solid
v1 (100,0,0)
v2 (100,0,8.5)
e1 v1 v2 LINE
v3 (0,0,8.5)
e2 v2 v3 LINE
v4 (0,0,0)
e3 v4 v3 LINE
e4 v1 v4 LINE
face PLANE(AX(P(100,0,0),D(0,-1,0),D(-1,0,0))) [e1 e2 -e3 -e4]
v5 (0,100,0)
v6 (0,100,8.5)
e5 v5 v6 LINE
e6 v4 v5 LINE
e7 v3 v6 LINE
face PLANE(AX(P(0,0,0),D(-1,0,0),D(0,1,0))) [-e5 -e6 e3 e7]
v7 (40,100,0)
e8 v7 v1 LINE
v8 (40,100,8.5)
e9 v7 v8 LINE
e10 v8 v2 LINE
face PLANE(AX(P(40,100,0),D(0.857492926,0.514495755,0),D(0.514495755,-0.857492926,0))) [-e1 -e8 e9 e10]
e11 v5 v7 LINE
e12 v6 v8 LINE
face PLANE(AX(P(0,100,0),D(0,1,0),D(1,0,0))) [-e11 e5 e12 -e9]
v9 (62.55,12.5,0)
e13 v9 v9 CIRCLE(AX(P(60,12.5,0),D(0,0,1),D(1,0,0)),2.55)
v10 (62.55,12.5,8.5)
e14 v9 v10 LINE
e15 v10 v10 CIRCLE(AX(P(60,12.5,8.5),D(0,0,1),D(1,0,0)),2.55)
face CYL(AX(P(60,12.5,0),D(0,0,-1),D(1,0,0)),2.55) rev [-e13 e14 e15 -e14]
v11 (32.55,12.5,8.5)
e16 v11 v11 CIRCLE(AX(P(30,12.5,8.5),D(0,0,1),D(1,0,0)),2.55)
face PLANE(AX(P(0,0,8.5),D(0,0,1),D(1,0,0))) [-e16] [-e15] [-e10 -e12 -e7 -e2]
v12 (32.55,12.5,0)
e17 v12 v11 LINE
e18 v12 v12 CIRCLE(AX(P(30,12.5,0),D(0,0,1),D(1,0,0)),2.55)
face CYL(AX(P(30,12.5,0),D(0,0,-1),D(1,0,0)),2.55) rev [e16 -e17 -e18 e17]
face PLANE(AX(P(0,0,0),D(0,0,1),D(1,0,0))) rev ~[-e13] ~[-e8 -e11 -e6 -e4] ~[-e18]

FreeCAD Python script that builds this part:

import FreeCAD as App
import Part
import Sketcher

V = App.Vector

doc = App.newDocument("Part")
body = doc.addObject("PartDesign::Body", "Body")

# Sketch on XY plane
sketch1 = doc.addObject("Sketcher::SketchObject", "Sketch")
body.addObject(sketch1)
sketch1.AttachmentSupport = (doc.XY_Plane, [""])
sketch1.MapMode = "FlatFace"
sketch1.addGeometry(Part.LineSegment(V(0, 100, 0), V(0, 0, 0)), False)
sketch1.addGeometry(Part.LineSegment(V(0, 0, 0), V(100, 0, 0)), False)
sketch1.addGeometry(Part.LineSegment(V(100, 0, 0), V(40, 100, 0)), False)
sketch1.addGeometry(Part.LineSegment(V(40, 100, 0), V(0, 100, 0)), False)
sketch1.addGeometry(Part.Circle(V(30, 12.5, 0), V(0, 0, 1), 2.5), False)
sketch1.addGeometry(Part.Circle(V(60, 12.5, 0), V(0, 0, 1), 2.5), False)
sketch1.addConstraint(Sketcher.Constraint("Coincident", 0, 2, 1, 1))
sketch1.addConstraint(Sketcher.Constraint("Coincident", 1, 2, 2, 1))
sketch1.addConstraint(Sketcher.Constraint("Coincident", 2, 2, 3, 1))
sketch1.addConstraint(Sketcher.Constraint("Coincident", 3, 2, 0, 1))
sketch1.addConstraint(Sketcher.Constraint("Vertical", 0))
sketch1.addConstraint(Sketcher.Constraint("Horizontal", 1))
sketch1.addConstraint(Sketcher.Constraint("Horizontal", 3))
sketch1.addConstraint(Sketcher.Constraint("Coincident", 0, 2, -1, 1))
sketch1.addConstraint(Sketcher.Constraint("Equal", 4, 5))
sketch1.addConstraint(Sketcher.Constraint("Horizontal", 4, 3, 5, 3))
sketch1.addConstraint(Sketcher.Constraint("Equal", 1, 0))
sketch1.addConstraint(Sketcher.Constraint("Diameter", 4, 5.1))
sketch1.addConstraint(Sketcher.Constraint("DistanceX", 1, 1, 1, 2, 100.0))
sketch1.addConstraint(Sketcher.Constraint("DistanceX", 3, 2, 3, 1, 40.0))
sketch1.addConstraint(Sketcher.Constraint("DistanceX", -1, 1, 4, 3, 30.0))
sketch1.addConstraint(Sketcher.Constraint("DistanceX", 4, 3, 5, 3, 30.0))
sketch1.addConstraint(Sketcher.Constraint("DistanceY", -1, 1, 4, 3, 12.5))
pad1 = doc.addObject("PartDesign::Pad", "Pad")
body.addObject(pad1)
pad1.Profile = sketch1
pad1.Length = 8.5

doc.recompute()
